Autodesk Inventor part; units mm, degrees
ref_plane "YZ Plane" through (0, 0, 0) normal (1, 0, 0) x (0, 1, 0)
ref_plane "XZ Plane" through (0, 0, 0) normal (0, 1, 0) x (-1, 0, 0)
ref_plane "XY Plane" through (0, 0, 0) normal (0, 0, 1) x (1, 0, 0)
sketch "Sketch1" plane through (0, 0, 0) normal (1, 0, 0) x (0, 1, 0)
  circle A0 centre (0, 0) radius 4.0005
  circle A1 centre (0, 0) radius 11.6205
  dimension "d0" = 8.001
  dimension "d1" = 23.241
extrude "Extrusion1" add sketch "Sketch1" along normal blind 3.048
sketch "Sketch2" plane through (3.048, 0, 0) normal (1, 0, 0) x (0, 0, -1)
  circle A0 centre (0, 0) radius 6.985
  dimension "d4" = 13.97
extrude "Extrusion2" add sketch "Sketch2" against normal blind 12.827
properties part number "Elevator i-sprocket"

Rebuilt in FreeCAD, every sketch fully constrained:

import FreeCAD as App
import Part
import Sketcher

V = App.Vector
Q = App.Units.Quantity

doc = App.newDocument("Part")
body = doc.addObject("PartDesign::Body", "Body")

sketch1 = body.newObject("Sketcher::SketchObject", "Sketch")
sketch1.AttachmentSupport = (doc.getObject("YZ_Plane"), [""])
sketch1.MapMode = "FlatFace"
sketch1.addGeometry([
    Part.Circle(V(0, 0, 0), V(0, 0, 1), 11.6),
    Part.Circle(V(0, 0, 0), V(0, 0, 1), 4),
], False)
sketch1.addConstraint([
    Sketcher.Constraint("Coincident", 0, 3, -1, 1),
    Sketcher.Constraint("Coincident", 1, 3, -1, 1),
    Sketcher.Constraint("Diameter", 0, Q("0.915 in")),
    Sketcher.Constraint("Diameter", 1, Q("0.315 in")),
])
pad1 = body.newObject("PartDesign::Pad", "Pad")
pad1.Profile = sketch1
pad1.Length = Q("0.12 in")

sketch2 = body.newObject("Sketcher::SketchObject", "Sketch001")
sketch2.AttachmentSupport = (doc.getObject("YZ_Plane"), [""])
sketch2.MapMode = "FlatFace"
sketch2.AttachmentOffset = App.Placement(V(0, 0, 0.12 * 25.4), App.Rotation())
sketch2.addGeometry(Part.Circle(V(0, 0, 0), V(0, 0, 1), 7), False)
sketch2.addConstraint([
    Sketcher.Constraint("Coincident", 0, 3, -1, 1),
    Sketcher.Constraint("Diameter", 0, Q("0.55 in")),
])
pad2 = body.newObject("PartDesign::Pad", "Pad001")
pad2.Profile = sketch2
pad2.Length = Q("0.505 in")
pad2.Reversed = True

doc.recompute()
